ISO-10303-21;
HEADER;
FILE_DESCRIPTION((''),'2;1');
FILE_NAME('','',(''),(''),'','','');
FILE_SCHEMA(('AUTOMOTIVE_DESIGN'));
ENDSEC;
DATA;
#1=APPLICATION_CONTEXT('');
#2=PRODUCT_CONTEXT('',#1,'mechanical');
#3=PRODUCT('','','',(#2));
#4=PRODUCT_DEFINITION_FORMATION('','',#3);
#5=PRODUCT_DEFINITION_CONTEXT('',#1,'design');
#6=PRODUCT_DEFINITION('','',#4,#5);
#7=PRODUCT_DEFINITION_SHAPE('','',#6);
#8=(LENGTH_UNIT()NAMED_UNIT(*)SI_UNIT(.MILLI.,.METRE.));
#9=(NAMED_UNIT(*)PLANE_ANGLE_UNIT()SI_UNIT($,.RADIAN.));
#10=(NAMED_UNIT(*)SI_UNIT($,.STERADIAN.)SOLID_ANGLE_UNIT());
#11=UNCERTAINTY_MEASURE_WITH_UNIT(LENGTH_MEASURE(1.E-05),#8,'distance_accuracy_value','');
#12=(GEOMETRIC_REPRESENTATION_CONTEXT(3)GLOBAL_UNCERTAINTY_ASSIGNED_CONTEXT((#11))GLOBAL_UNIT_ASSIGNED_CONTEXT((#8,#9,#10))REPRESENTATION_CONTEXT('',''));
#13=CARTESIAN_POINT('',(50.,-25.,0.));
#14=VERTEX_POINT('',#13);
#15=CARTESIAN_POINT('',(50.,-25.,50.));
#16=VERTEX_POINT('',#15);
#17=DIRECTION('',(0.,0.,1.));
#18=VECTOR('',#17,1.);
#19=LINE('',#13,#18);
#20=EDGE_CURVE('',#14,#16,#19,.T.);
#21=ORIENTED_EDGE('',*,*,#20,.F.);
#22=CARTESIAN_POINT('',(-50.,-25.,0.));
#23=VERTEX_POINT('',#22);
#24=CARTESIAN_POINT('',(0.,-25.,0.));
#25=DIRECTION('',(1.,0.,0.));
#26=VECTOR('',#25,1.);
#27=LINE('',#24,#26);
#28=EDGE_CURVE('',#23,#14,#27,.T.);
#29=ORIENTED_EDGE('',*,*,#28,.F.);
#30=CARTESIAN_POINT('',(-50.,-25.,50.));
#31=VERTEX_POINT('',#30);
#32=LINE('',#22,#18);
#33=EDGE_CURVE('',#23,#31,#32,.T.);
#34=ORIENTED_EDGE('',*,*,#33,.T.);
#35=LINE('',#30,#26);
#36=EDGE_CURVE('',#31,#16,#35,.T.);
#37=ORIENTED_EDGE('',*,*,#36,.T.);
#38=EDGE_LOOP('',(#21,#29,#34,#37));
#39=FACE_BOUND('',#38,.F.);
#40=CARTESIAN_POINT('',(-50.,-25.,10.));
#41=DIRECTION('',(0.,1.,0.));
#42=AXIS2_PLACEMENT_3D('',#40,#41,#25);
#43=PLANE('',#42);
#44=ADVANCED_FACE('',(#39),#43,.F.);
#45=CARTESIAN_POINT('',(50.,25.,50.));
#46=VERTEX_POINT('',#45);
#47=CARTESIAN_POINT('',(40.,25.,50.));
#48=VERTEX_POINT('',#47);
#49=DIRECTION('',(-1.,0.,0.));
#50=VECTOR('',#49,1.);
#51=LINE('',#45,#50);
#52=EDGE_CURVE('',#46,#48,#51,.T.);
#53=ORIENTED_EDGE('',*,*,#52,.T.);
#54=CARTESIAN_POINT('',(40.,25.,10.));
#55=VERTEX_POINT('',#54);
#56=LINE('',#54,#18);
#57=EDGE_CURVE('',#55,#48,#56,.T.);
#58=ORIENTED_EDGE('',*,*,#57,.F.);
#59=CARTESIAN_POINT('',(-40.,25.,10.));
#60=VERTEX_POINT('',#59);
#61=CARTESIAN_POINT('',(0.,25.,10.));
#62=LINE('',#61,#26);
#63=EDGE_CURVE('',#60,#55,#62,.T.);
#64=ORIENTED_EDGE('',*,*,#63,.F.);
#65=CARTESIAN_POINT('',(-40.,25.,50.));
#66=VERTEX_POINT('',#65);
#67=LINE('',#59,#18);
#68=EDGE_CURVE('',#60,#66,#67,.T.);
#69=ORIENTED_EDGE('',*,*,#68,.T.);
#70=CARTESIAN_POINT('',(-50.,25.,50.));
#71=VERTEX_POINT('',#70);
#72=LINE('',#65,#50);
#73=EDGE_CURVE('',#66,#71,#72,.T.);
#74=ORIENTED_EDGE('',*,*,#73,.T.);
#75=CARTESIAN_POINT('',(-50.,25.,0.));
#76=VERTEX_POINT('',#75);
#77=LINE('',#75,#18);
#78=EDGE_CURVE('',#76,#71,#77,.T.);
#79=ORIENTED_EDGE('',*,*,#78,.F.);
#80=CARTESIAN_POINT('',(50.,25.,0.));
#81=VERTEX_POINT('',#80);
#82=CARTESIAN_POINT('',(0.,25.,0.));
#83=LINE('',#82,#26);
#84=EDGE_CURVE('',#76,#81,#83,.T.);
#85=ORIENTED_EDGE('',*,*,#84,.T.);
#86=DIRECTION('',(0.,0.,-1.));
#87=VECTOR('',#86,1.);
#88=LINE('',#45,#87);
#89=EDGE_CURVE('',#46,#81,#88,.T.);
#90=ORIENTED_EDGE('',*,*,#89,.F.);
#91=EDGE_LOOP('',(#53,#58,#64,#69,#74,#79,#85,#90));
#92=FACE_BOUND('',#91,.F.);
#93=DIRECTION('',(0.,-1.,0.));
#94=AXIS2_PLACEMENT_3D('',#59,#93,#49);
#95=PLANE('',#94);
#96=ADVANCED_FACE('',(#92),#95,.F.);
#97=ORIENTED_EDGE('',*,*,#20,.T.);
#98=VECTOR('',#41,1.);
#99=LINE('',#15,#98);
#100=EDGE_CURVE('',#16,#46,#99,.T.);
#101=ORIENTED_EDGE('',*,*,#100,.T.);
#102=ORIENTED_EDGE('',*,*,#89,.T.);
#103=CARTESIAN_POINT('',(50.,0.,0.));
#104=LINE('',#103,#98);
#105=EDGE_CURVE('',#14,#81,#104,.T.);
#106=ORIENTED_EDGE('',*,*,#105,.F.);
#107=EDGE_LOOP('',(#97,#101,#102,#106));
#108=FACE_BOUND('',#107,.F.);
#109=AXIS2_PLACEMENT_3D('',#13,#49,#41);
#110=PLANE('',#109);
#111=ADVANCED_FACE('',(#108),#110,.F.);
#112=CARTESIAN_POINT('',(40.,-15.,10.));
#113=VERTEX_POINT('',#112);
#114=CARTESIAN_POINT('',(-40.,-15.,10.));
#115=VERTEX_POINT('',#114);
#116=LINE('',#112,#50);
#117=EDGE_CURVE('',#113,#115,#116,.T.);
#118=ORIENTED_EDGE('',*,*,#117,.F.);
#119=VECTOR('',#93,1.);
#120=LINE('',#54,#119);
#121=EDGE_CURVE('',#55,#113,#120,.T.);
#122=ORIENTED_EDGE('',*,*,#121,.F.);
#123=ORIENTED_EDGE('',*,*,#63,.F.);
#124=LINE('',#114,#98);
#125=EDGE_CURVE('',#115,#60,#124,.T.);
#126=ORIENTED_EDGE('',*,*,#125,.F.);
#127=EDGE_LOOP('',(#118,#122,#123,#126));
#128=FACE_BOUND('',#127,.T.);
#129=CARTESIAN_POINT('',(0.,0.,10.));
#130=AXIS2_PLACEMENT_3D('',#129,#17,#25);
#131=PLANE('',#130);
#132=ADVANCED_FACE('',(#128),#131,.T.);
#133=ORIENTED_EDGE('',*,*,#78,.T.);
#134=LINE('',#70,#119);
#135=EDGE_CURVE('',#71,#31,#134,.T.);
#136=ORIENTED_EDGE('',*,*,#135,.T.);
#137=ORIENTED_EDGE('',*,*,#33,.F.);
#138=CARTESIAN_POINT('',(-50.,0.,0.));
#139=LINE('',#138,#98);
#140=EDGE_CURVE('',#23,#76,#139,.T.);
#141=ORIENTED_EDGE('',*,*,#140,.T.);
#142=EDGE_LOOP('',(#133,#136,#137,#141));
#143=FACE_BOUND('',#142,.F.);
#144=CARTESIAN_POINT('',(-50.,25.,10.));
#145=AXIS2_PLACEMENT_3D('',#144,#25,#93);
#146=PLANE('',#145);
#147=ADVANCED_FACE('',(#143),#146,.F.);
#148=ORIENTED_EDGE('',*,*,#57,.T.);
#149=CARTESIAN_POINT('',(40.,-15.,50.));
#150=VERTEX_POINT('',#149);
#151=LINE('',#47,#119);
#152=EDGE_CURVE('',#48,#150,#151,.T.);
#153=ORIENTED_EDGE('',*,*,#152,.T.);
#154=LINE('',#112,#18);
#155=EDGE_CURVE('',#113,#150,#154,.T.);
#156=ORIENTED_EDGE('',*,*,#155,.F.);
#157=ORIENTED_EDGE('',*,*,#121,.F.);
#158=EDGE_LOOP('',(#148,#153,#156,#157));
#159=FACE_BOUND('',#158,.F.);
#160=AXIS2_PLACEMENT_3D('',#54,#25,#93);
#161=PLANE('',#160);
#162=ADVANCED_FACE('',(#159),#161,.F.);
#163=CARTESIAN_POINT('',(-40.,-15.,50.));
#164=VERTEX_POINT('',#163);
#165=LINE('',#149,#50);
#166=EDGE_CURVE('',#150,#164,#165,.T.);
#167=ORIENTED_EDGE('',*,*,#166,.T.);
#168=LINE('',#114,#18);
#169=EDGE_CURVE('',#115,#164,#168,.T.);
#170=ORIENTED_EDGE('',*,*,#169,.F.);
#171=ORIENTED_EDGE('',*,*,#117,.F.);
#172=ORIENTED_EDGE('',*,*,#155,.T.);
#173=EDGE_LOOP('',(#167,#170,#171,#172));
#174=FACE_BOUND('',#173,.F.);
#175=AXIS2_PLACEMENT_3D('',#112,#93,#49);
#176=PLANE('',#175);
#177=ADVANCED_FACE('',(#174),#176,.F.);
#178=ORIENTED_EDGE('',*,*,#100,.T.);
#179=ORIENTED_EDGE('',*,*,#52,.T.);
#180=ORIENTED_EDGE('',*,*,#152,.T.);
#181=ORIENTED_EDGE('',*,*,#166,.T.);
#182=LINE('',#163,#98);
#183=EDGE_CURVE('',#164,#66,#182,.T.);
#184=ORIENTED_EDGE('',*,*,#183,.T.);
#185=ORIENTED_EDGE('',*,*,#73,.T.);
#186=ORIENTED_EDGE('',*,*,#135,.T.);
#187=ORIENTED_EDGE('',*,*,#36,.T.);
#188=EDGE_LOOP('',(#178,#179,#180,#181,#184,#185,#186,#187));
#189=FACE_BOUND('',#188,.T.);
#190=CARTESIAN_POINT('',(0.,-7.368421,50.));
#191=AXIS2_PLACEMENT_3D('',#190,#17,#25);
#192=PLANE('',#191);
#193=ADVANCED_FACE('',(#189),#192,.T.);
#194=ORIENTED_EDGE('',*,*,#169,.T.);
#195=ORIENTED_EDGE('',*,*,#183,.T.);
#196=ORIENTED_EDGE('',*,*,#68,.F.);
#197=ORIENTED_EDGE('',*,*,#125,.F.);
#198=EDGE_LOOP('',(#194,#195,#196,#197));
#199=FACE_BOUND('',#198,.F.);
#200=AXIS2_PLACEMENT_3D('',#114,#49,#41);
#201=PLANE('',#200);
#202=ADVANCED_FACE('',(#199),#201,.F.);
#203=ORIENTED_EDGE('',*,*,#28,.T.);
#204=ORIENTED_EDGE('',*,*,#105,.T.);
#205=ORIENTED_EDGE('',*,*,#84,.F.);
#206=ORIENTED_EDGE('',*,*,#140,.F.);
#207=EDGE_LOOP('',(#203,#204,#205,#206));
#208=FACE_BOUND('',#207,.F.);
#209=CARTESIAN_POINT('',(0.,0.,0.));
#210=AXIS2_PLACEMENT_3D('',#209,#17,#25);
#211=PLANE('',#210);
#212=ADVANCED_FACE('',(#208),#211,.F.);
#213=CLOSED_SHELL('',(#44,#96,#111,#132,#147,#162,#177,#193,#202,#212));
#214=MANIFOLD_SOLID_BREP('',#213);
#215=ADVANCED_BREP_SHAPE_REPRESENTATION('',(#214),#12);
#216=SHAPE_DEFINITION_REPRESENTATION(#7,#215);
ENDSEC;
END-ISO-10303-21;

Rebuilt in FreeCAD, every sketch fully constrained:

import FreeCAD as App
import Part
import Sketcher
from FreeCAD import Vector


def add_polygon(sketch, points):
    """Adds a closed chain of lines whose ends are joined by coincident constraints."""
    first, n = sketch.GeometryCount, len(points)
    for a, b in zip(points, points[1:] + points[:1]):
        sketch.addGeometry(Part.LineSegment(App.Vector(*a, 0), App.Vector(*b, 0)), False)
    for i in range(n):
        sketch.addConstraint(Sketcher.Constraint("Coincident", first + i, 2, first + (i + 1) % n, 1))

doc = App.newDocument("Part")
body = doc.addObject("PartDesign::Body", "Body")

# Sketch on XY plane
sketch1 = body.newObject("Sketcher::SketchObject", "Sketch")
sketch1.AttachmentSupport = (doc.getObject("XY_Plane"), [""])
sketch1.MapMode = "FlatFace"
add_polygon(sketch1, [(-50, 25), (-50, -25), (50, -25), (50, 25)])  # lines 0-3
sketch1.addConstraint([
    Sketcher.Constraint("Vertical", 0),
    Sketcher.Constraint("Horizontal", 1),
    Sketcher.Constraint("Vertical", 2),
    Sketcher.Constraint("Horizontal", 3),
    Sketcher.Constraint("Symmetric", 0, 2, 2, 2, -1, 1),
    Sketcher.Constraint("DistanceX", 1, 1, 1, 2, 100.0),
    Sketcher.Constraint("DistanceY", 0, 2, 0, 1, 50.0),
])
pad1 = body.newObject("PartDesign::Pad", "Pad")
pad1.Profile = sketch1
pad1.Length = 10

# Sketch on XY plane
sketch2 = body.newObject("Sketcher::SketchObject", "Sketch001")
sketch2.AttachmentSupport = (doc.getObject("XY_Plane"), [""])
sketch2.MapMode = "FlatFace"
sketch2.AttachmentOffset = App.Placement(Vector(0, 0, 10), App.Rotation())
add_polygon(sketch2, [(-40, 25), (-50, 25), (-50, -25), (50, -25), (50, 25), (40, 25), (40, -15), (-40, -15)])  # lines 0-7
sketch2.addConstraint([
    Sketcher.Constraint("Horizontal", 0),
    Sketcher.Constraint("Vertical", 1),
    Sketcher.Constraint("Horizontal", 2),
    Sketcher.Constraint("Vertical", 3),
    Sketcher.Constraint("Horizontal", 4),
    Sketcher.Constraint("Vertical", 5),
    Sketcher.Constraint("Horizontal", 6),
    Sketcher.Constraint("Vertical", 7),
    Sketcher.Constraint("Symmetric", 0, 2, 2, 2, -1, 1),
    Sketcher.Constraint("Symmetric", 4, 2, 7, 2, -2),
    Sketcher.Constraint("DistanceX", 0, 2, 0, 1, 10.0),
    Sketcher.Constraint("DistanceX", 2, 1, 2, 2, 100.0),
    Sketcher.Constraint("DistanceY", 1, 2, 1, 1, 50.0),
    Sketcher.Constraint("DistanceY", 5, 2, 5, 1, 40.0),
])
pad2 = body.newObject("PartDesign::Pad", "Pad001")
pad2.Profile = sketch2
pad2.Length = 40

doc.recompute()
